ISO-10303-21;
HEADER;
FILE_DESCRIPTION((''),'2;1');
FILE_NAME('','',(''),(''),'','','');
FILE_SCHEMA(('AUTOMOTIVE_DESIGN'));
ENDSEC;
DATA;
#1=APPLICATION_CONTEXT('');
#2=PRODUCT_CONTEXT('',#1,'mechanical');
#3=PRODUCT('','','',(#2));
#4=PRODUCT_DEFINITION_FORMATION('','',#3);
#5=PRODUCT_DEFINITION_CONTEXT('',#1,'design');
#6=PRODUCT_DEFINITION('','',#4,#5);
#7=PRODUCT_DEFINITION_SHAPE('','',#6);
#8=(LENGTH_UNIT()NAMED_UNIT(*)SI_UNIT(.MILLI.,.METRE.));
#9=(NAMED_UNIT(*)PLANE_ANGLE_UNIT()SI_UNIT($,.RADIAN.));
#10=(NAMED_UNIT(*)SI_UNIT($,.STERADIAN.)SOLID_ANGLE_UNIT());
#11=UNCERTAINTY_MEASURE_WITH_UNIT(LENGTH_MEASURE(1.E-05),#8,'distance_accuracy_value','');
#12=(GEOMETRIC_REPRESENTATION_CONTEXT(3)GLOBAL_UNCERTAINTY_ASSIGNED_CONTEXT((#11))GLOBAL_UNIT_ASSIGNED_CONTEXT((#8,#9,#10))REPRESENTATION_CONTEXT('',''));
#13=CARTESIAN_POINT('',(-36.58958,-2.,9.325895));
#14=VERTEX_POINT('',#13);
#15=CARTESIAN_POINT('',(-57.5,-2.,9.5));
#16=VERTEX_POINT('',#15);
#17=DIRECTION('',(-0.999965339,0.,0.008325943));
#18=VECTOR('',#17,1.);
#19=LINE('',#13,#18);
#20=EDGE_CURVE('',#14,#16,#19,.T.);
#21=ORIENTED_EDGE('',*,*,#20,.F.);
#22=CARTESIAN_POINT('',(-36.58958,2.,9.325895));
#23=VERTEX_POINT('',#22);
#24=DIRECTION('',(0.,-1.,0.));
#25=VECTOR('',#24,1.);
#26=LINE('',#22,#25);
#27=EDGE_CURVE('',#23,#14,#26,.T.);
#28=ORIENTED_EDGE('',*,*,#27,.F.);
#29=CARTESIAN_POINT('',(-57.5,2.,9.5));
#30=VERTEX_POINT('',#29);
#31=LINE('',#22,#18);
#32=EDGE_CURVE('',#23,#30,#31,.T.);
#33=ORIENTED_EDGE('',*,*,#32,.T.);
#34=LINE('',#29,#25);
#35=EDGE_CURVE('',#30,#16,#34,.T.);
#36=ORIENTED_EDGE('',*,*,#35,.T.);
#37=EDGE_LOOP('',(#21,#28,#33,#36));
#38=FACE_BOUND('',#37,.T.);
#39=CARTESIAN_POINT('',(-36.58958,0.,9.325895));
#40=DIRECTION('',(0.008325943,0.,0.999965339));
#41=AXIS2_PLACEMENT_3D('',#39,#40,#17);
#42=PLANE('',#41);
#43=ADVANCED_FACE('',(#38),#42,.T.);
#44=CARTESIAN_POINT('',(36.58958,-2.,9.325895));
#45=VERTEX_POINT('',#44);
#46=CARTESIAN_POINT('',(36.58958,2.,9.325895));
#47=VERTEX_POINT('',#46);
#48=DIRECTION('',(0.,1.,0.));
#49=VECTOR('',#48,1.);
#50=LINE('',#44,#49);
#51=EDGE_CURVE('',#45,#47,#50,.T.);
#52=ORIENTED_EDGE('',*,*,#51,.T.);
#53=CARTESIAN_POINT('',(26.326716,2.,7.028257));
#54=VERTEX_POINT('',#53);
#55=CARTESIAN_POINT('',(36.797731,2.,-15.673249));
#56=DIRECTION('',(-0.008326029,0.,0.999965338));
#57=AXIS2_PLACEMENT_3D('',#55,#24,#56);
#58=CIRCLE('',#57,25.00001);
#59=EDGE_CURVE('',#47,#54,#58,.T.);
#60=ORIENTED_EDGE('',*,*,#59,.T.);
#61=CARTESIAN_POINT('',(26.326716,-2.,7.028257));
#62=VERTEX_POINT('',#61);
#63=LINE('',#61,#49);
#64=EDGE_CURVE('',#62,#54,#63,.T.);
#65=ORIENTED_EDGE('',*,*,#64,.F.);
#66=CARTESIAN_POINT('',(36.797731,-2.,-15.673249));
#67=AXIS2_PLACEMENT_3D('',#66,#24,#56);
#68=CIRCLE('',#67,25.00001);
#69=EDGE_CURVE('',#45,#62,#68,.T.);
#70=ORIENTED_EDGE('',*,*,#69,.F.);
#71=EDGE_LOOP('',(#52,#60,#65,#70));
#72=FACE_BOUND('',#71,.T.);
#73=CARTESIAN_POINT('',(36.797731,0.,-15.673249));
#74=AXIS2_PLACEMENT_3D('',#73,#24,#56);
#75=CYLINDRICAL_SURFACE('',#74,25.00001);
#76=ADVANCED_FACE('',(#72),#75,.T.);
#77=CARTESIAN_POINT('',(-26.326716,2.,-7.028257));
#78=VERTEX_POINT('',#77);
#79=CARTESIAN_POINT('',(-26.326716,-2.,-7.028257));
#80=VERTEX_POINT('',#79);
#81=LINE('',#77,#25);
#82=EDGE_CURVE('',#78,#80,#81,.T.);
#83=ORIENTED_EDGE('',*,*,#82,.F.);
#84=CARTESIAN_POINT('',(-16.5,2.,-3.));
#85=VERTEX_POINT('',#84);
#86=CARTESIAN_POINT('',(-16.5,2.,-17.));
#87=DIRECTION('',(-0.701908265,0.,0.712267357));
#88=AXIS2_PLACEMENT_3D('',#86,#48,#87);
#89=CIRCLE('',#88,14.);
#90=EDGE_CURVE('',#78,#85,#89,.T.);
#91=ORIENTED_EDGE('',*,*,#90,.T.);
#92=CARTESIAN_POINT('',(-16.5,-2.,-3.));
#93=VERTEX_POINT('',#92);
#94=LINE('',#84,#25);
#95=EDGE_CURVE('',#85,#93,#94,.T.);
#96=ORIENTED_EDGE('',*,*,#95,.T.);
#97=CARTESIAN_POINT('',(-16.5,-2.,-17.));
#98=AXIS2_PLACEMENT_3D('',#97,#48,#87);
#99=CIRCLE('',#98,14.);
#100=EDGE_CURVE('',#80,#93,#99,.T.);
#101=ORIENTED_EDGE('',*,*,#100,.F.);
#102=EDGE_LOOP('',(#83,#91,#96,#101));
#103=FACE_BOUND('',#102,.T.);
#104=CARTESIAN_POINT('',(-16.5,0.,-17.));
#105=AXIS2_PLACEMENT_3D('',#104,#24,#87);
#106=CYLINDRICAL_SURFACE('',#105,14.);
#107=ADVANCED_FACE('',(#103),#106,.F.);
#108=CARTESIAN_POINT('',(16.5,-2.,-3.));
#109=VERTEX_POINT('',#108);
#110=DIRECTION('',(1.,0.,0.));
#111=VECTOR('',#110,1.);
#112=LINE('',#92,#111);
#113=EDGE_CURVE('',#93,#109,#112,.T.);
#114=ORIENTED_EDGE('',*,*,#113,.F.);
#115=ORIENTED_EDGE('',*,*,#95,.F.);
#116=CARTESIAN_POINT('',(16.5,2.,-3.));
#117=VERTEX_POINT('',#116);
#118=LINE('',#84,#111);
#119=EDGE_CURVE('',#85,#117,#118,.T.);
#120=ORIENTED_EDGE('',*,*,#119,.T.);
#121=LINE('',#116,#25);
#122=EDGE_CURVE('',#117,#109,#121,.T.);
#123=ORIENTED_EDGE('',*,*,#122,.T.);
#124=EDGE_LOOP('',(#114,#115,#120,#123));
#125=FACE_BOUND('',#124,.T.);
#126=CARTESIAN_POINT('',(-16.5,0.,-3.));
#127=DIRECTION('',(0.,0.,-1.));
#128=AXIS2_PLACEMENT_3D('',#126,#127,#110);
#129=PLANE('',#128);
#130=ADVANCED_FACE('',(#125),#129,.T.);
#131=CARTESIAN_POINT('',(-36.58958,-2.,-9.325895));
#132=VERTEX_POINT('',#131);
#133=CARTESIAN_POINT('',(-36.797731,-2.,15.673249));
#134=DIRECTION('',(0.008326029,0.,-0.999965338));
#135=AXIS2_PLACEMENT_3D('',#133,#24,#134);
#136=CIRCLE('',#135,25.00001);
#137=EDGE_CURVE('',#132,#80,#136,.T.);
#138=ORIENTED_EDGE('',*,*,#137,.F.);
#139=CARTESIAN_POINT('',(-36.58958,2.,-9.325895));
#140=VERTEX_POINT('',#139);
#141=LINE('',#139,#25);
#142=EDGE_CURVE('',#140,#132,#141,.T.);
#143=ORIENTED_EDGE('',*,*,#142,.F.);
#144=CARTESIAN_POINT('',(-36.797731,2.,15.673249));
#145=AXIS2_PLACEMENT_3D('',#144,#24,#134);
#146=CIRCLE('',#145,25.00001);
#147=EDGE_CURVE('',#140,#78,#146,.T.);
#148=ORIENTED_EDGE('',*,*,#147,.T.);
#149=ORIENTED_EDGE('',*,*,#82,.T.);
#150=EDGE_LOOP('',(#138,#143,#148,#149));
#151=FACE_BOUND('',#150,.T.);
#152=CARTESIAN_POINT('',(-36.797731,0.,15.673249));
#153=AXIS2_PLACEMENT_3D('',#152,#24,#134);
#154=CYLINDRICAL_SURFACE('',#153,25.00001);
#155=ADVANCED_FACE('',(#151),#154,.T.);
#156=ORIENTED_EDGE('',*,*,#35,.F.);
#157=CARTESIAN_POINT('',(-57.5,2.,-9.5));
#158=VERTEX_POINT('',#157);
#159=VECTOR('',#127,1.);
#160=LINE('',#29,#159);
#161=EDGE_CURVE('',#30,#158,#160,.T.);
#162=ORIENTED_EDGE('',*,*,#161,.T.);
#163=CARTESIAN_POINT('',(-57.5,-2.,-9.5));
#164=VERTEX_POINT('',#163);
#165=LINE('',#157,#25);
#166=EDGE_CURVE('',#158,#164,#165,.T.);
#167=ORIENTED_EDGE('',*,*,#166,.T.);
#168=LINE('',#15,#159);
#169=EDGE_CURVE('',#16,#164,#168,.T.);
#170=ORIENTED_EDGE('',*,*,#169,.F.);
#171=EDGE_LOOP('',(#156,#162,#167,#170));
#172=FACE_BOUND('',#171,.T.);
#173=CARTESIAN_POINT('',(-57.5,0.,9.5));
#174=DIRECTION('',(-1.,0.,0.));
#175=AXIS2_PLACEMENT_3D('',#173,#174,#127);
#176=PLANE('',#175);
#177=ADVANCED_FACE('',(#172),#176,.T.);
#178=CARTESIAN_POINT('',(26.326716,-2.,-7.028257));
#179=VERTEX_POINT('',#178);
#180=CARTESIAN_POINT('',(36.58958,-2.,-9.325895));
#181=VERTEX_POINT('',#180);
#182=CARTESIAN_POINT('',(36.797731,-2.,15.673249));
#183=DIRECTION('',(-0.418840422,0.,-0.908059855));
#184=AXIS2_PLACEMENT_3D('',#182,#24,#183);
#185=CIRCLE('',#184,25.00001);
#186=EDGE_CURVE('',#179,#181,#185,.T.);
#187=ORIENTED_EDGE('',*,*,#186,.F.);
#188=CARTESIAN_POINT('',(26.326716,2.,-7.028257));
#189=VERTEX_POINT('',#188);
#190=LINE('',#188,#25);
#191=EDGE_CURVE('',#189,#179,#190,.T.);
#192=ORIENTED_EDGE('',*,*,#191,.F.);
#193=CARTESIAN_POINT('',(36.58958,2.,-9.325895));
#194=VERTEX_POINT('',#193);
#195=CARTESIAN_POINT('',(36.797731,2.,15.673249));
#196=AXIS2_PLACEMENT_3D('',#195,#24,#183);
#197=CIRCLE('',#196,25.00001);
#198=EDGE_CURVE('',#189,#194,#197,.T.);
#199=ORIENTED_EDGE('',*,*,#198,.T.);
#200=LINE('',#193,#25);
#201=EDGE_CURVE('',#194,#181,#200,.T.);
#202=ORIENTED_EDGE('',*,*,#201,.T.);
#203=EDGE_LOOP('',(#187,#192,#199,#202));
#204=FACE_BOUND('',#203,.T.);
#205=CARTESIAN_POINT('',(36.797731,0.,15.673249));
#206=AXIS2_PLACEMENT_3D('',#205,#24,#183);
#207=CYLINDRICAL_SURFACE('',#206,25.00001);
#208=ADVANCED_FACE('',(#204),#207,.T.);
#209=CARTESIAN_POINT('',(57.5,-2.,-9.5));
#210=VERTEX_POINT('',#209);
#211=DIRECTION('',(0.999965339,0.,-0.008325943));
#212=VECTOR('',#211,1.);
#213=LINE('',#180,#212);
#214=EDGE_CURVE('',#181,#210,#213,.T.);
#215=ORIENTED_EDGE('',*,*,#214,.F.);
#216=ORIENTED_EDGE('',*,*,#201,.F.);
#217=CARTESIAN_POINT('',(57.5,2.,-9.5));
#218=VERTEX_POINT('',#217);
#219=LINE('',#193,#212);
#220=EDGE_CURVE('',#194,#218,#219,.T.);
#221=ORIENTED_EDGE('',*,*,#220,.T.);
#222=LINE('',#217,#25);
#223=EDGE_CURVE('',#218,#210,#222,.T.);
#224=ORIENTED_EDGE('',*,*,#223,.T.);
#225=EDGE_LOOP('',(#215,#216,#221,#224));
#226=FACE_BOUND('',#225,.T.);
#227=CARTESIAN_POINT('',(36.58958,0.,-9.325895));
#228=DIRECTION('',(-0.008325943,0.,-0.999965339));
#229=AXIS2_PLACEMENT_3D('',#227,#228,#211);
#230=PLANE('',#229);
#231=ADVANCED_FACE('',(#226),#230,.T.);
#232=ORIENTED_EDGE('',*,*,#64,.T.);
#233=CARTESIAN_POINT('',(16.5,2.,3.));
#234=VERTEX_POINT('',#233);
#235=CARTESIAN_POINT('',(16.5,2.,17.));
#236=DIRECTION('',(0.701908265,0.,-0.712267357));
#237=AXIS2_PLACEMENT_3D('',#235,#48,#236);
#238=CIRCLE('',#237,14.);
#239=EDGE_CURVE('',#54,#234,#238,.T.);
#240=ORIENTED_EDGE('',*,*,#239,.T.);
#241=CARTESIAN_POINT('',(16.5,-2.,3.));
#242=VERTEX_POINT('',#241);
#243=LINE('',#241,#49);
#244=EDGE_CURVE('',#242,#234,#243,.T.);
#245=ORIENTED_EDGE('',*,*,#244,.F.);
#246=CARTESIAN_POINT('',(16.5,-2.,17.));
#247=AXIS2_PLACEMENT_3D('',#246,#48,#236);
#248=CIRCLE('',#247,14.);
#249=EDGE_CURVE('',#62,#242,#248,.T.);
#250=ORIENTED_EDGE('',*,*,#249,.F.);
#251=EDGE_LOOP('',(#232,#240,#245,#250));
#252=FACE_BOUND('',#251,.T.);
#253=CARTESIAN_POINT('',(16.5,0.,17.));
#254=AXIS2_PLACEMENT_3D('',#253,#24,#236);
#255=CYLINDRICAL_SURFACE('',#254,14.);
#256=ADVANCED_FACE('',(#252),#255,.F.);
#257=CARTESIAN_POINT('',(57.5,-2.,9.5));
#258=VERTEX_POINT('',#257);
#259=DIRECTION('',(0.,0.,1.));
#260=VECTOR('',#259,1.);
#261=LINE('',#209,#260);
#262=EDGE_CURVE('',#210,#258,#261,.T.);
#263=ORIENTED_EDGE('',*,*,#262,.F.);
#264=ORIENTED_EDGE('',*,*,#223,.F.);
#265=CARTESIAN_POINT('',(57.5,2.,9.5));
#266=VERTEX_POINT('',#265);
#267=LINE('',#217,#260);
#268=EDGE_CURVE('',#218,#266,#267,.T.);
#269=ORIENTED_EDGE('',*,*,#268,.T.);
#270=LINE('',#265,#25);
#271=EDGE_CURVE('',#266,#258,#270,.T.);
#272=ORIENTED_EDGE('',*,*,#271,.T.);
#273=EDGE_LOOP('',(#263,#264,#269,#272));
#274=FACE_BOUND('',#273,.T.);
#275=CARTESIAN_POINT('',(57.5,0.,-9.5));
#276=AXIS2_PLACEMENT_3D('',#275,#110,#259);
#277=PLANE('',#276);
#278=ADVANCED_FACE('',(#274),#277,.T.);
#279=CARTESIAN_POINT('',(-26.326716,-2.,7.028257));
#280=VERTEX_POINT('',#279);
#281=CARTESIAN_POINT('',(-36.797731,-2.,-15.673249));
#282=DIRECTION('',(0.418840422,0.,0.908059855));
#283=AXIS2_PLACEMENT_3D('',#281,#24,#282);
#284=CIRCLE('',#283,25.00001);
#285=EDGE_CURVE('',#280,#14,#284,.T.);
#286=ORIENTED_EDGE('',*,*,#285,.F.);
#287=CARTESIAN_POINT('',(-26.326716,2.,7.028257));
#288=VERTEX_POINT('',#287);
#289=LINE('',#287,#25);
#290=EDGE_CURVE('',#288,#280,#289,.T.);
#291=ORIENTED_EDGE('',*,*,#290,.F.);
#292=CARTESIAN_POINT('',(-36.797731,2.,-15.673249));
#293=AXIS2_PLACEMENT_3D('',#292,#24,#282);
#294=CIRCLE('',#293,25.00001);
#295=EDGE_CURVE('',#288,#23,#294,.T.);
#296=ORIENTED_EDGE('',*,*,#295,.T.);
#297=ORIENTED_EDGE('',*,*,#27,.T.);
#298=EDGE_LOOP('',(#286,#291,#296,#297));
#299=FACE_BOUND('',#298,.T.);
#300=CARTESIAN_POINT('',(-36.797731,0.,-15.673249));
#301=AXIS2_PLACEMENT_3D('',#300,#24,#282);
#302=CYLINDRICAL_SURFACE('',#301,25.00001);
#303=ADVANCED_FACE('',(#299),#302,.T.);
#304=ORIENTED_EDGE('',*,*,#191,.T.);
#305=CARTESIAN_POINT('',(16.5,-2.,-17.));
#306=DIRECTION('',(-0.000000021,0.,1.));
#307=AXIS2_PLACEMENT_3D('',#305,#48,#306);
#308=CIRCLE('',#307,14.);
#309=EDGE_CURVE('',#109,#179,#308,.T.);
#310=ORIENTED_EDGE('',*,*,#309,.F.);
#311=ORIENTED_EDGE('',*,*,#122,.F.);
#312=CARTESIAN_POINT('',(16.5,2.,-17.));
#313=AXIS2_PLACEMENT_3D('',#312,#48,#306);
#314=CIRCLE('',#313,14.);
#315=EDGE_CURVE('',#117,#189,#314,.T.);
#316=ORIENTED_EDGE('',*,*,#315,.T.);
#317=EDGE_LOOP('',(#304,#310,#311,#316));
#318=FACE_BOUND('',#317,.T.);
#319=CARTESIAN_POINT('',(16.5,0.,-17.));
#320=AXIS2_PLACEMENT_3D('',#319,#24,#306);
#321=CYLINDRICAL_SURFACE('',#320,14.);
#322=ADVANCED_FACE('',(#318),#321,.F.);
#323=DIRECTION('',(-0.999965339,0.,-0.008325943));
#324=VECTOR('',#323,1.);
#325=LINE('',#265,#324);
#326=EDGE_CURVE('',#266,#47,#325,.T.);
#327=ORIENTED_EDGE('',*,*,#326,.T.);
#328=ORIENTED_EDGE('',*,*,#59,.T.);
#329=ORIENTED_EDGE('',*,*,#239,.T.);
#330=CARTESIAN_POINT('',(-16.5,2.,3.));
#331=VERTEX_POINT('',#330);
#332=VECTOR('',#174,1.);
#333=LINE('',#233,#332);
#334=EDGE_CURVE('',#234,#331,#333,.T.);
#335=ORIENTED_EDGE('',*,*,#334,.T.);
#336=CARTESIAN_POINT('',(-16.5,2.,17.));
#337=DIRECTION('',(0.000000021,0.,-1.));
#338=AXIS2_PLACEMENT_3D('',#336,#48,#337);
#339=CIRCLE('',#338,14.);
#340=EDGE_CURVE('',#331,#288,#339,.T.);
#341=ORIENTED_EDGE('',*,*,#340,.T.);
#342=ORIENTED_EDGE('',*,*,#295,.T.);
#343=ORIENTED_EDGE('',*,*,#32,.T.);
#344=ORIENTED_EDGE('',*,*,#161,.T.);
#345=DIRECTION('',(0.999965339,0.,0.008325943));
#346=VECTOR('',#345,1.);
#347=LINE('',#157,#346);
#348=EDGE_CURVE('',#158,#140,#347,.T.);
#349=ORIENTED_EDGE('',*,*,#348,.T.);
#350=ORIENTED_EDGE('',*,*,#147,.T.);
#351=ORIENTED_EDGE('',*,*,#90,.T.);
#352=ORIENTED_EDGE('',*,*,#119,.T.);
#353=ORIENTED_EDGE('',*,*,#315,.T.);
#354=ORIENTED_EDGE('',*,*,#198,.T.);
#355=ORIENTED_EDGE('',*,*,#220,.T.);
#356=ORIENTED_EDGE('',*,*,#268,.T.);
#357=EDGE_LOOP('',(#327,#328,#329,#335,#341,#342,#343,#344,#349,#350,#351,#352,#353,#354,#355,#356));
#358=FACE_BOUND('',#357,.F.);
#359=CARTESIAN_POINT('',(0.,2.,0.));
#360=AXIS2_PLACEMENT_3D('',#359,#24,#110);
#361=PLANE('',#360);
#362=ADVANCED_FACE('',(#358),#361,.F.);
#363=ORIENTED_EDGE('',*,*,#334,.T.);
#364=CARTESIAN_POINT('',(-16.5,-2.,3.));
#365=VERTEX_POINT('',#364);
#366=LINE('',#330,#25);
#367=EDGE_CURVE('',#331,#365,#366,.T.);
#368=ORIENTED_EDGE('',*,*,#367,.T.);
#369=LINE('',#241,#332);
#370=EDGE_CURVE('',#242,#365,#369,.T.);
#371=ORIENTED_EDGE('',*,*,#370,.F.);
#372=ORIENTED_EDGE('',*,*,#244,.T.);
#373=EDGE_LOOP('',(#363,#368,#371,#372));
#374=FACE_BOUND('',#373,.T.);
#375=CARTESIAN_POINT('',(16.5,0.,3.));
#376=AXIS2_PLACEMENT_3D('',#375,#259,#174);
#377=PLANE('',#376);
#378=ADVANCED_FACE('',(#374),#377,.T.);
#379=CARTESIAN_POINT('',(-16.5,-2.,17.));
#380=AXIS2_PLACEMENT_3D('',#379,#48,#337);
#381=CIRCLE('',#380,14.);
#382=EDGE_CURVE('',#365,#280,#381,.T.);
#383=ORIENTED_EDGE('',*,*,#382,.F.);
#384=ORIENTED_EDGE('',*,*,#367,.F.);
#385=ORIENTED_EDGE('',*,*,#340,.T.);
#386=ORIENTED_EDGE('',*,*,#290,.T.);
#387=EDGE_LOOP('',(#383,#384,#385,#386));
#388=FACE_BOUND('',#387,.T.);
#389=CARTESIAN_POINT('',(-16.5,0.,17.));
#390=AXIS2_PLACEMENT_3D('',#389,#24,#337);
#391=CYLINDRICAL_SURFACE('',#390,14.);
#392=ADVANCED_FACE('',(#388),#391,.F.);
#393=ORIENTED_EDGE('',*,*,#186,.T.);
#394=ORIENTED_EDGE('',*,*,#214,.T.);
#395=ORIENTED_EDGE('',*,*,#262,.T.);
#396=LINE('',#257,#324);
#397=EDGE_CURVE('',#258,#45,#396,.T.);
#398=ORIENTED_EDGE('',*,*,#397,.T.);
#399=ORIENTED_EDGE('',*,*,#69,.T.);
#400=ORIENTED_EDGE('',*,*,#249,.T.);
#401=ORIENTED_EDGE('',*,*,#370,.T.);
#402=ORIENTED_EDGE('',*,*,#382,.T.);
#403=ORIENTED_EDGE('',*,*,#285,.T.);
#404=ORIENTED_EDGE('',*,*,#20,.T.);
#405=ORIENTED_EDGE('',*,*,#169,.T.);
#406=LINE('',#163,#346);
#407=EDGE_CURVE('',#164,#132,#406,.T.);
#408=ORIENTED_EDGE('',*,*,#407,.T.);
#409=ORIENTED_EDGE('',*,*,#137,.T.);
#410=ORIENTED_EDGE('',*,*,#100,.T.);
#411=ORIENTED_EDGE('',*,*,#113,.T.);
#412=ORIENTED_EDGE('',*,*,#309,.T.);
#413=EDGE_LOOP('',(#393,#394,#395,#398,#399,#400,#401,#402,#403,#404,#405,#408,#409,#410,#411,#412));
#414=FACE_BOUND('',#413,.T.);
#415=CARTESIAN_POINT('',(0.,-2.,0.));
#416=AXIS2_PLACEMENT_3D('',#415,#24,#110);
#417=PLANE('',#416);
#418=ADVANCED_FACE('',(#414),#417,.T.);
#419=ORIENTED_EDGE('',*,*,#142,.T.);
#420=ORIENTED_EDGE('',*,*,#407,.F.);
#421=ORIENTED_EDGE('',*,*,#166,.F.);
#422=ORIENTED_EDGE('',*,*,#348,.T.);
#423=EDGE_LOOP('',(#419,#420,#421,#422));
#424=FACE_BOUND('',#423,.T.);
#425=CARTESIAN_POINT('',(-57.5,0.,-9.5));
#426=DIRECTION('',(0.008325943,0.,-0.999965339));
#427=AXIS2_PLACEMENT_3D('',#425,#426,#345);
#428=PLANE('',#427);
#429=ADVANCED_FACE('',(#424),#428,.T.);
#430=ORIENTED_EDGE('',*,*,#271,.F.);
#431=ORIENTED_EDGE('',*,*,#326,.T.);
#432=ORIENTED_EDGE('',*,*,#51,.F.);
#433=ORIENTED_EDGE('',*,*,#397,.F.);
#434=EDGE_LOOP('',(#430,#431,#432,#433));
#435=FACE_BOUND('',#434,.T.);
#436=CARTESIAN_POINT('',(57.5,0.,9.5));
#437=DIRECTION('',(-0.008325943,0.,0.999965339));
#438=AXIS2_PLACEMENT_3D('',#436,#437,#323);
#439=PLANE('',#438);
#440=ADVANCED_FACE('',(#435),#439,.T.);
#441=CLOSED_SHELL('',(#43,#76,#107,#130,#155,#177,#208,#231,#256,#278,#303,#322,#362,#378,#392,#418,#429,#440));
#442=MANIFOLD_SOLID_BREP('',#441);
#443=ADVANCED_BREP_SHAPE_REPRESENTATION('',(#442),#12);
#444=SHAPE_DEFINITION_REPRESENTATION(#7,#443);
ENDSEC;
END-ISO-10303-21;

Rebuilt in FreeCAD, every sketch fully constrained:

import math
import FreeCAD as App
import Part
import Sketcher
from FreeCAD import Vector

doc = App.newDocument("Part")
params = doc.addObject("Spreadsheet::Sheet", "Params")
for row, (alias, value) in enumerate([
    ("sketch1_radius", "14 mm"),
    ("sketch1_width", "33 mm"),
    ("sketch1_height", "19 mm"),
    ("pad1_length", "4 mm"),
], start=1):
    params.set(f"A{row}", alias)
    params.set(f"B{row}", "=" + value)
    params.setAlias(f"B{row}", alias)

body = doc.addObject("PartDesign::Body", "Body")

sketch1 = body.newObject("Sketcher::SketchObject", "Sketch")
sketch1.AttachmentSupport = (doc.getObject("XZ_Plane"), [""])
sketch1.MapMode = "FlatFace"
sketch1.addGeometry([
    Part.LineSegment(Vector(16.5, 3, 0), Vector(-16.5, 3, 0)),
    Part.ArcOfCircle(Part.Circle(Vector(-16.5, 17, 0), Vector(0, 0, 1), 14), math.radians(-134.580306), math.radians(-89.999999)),
    Part.ArcOfCircle(Part.Circle(Vector(-36.797731, -15.673249, 0), Vector(0, 0, 1), 25.00001), math.radians(65.2386), math.radians(89.522948)),
    Part.LineSegment(Vector(-36.58958, 9.325895, 0), Vector(-57.5, 9.5, 0)),
    Part.LineSegment(Vector(-57.5, 9.5, 0), Vector(-57.5, -9.5, 0)),
    Part.LineSegment(Vector(-57.5, -9.5, 0), Vector(-36.58958, -9.325895, 0)),
    Part.ArcOfCircle(Part.Circle(Vector(-36.797731, 15.673249, 0), Vector(0, 0, 1), 25.00001), math.radians(-89.522948), math.radians(-65.2386)),
    Part.ArcOfCircle(Part.Circle(Vector(-16.5, -17, 0), Vector(0, 0, 1), 14), math.radians(89.999999), math.radians(134.580306)),
    Part.LineSegment(Vector(-16.5, -3, 0), Vector(16.5, -3, 0)),
    Part.ArcOfCircle(Part.Circle(Vector(16.5, -17, 0), Vector(0, 0, 1), 14), math.radians(45.419694), math.radians(90.000001)),
    Part.ArcOfCircle(Part.Circle(Vector(36.797731, 15.673249, 0), Vector(0, 0, 1), 25.00001), math.radians(-114.7614), math.radians(-90.477052)),
    Part.LineSegment(Vector(36.58958, -9.325895, 0), Vector(57.5, -9.5, 0)),
    Part.LineSegment(Vector(57.5, -9.5, 0), Vector(57.5, 9.5, 0)),
    Part.LineSegment(Vector(57.5, 9.5, 0), Vector(36.58958, 9.325895, 0)),
    Part.ArcOfCircle(Part.Circle(Vector(36.797731, -15.673249, 0), Vector(0, 0, 1), 25.00001), math.radians(90.477052), math.radians(114.7614)),
    Part.ArcOfCircle(Part.Circle(Vector(16.5, 17, 0), Vector(0, 0, 1), 14), math.radians(-90.000001), math.radians(-45.419694)),
], False)
sketch1.addConstraint([
    Sketcher.Constraint("Tangent", 0, 2, 1, 2),
    Sketcher.Constraint("Coincident", 1, 1, 2, 1),
    Sketcher.Constraint("Tangent", 2, 2, 3, 1),
    Sketcher.Constraint("Coincident", 3, 2, 4, 1),
    Sketcher.Constraint("Coincident", 4, 2, 5, 1),
    Sketcher.Constraint("Tangent", 5, 2, 6, 1),
    Sketcher.Constraint("Coincident", 6, 2, 7, 2),
    Sketcher.Constraint("Tangent", 7, 1, 8, 1),
    Sketcher.Constraint("Tangent", 8, 2, 9, 2),
    Sketcher.Constraint("Coincident", 9, 1, 10, 1),
    Sketcher.Constraint("Tangent", 10, 2, 11, 1),
    Sketcher.Constraint("Coincident", 11, 2, 12, 1),
    Sketcher.Constraint("Coincident", 12, 2, 13, 1),
    Sketcher.Constraint("Tangent", 13, 2, 14, 1),
    Sketcher.Constraint("Coincident", 14, 2, 15, 2),
    Sketcher.Constraint("Tangent", 15, 1, 0, 1),
    Sketcher.Constraint("Horizontal", 0),
    Sketcher.Constraint("Vertical", 4),
    Sketcher.Constraint("Horizontal", 8),
    Sketcher.Constraint("Vertical", 12),
    Sketcher.Constraint("Equal", 2, 6),
    Sketcher.Constraint("Equal", 1, 7),
    Sketcher.Constraint("Equal", 7, 9),
    Sketcher.Constraint("Equal", 6, 10),
    Sketcher.Constraint("Equal", 10, 14),
    Sketcher.Constraint("Equal", 9, 15),
    Sketcher.Constraint("Symmetric", 1, 3, 9, 3, -1, 1),
    Sketcher.Constraint("Symmetric", 2, 3, 10, 3, -1, 1),
    Sketcher.Constraint("Symmetric", 6, 3, 14, 3, -1, 1),
    Sketcher.Constraint("Symmetric", 3, 2, 11, 2, -1, 1),
    Sketcher.Constraint("Symmetric", 6, 3, 10, 3, -2),
    Sketcher.Constraint("Parallel", 5, 13),
    Sketcher.Constraint("Horizontal", 6, 2, 9, 1),
    Sketcher.Constraint("Horizontal", 5, 2, 10, 2),
    Sketcher.Constraint("Horizontal", 1, 1, 14, 2),
    Sketcher.Constraint("Radius", 1, 14.0),
    Sketcher.Constraint("DistanceX", 0, 2, 0, 1, 33.0),
    Sketcher.Constraint("DistanceY", 4, 2, 4, 1, 19.0),
    Sketcher.Constraint("DistanceY", -1, 1, 1, 3, 17.0),
    Sketcher.Constraint("DistanceX", 3, 2, 0, 2, 41.0),
    Sketcher.Constraint("Radius", 2, 25.00001),
    Sketcher.Constraint("DistanceX", 2, 3, -1, 1, 36.797731),
    Sketcher.Constraint("DistanceY", 2, 3, -1, 1, 15.673249),
])
sketch1.setExpression("Constraints[35]", "Params.sketch1_radius")
sketch1.setExpression("Constraints[36]", "Params.sketch1_width")
sketch1.setExpression("Constraints[37]", "Params.sketch1_height")
pad1 = body.newObject("PartDesign::Pad", "Pad")
pad1.Profile = sketch1
pad1.setExpression("Length", "Params.pad1_length")
pad1.Midplane = True

doc.recompute()
